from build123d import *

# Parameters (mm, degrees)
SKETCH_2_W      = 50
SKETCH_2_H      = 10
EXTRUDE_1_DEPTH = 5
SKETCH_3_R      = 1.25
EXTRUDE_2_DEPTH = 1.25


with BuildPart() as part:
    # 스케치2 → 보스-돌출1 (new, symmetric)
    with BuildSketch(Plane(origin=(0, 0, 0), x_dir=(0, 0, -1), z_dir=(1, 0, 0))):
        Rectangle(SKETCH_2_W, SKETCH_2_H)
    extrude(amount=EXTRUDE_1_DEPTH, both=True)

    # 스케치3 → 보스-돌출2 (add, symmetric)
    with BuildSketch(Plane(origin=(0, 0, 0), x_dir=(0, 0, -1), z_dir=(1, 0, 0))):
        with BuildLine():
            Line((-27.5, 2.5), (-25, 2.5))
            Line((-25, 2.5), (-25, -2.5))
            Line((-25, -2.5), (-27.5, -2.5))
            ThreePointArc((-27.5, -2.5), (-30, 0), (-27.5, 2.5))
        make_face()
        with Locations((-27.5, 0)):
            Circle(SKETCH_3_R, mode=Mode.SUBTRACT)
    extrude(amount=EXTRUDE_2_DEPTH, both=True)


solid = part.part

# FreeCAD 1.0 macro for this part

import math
import FreeCAD as App
import Part
import Sketcher

V = App.Vector


def add_polygon(sketch, points):
    """Adds a closed chain of lines whose ends are joined by coincident constraints."""
    first, n = sketch.GeometryCount, len(points)
    for a, b in zip(points, points[1:] + points[:1]):
        sketch.addGeometry(Part.LineSegment(App.Vector(*a, 0), App.Vector(*b, 0)), False)
    for i in range(n):
        sketch.addConstraint(Sketcher.Constraint("Coincident", first + i, 2, first + (i + 1) % n, 1))

doc = App.newDocument("Part")
body = doc.addObject("PartDesign::Body", "Body")

# Sketch on YZ plane
sketch1 = body.newObject("Sketcher::SketchObject", "Sketch")
sketch1.AttachmentSupport = (doc.getObject("YZ_Plane"), [""])
sketch1.MapMode = "FlatFace"
add_polygon(sketch1, [(5, 25), (-5, 25), (-5, -25), (5, -25)])  # lines 0-3
sketch1.addConstraint(Sketcher.Constraint("Horizontal", 0))
sketch1.addConstraint(Sketcher.Constraint("Vertical", 1))
sketch1.addConstraint(Sketcher.Constraint("Horizontal", 2))
sketch1.addConstraint(Sketcher.Constraint("Vertical", 3))
sketch1.addConstraint(Sketcher.Constraint("Symmetric", 0, 2, 2, 2, -1, 1))
sketch1.addConstraint(Sketcher.Constraint("DistanceX", 0, 2, 0, 1, 10.0))
sketch1.addConstraint(Sketcher.Constraint("DistanceY", 1, 2, 1, 1, 50.0))
pad1 = body.newObject("PartDesign::Pad", "Pad")
pad1.Profile = sketch1
pad1.Length = 10
pad1.Midplane = True

# Sketch on YZ plane
sketch2 = body.newObject("Sketcher::SketchObject", "Sketch001")
sketch2.AttachmentSupport = (doc.getObject("YZ_Plane"), [""])
sketch2.MapMode = "FlatFace"
sketch2.addGeometry(Part.LineSegment(V(2.5, 25, 0), V(2.5, 27.5, 0)), False)
sketch2.addGeometry(Part.ArcOfCircle(Part.Circle(V(0, 27.5, 0), V(0, 0, 1), 2.5), math.radians(0), math.radians(180)), False)
sketch2.addGeometry(Part.LineSegment(V(-2.5, 27.5, 0), V(-2.5, 25, 0)), False)
sketch2.addGeometry(Part.LineSegment(V(-2.5, 25, 0), V(2.5, 25, 0)), False)
sketch2.addGeometry(Part.Circle(V(0, 27.5, 0), V(0, 0, 1), 1.2), False)
sketch2.addConstraint(Sketcher.Constraint("Tangent", 0, 2, 1, 1))
sketch2.addConstraint(Sketcher.Constraint("Tangent", 1, 2, 2, 1))
sketch2.addConstraint(Sketcher.Constraint("Coincident", 2, 2, 3, 1))
sketch2.addConstraint(Sketcher.Constraint("Coincident", 3, 2, 0, 1))
sketch2.addConstraint(Sketcher.Constraint("Vertical", 0))
sketch2.addConstraint(Sketcher.Constraint("Vertical", 2))
sketch2.addConstraint(Sketcher.Constraint("Horizontal", 3))
sketch2.addConstraint(Sketcher.Constraint("Coincident", 4, 3, 1, 3))
sketch2.addConstraint(Sketcher.Constraint("PointOnObject", 1, 3, -2))
sketch2.addConstraint(Sketcher.Constraint("Diameter", 4, 2.5))
sketch2.addConstraint(Sketcher.Constraint("Radius", 1, 2.5))
sketch2.addConstraint(Sketcher.Constraint("DistanceY", 0, 1, 0, 2, 2.5))
sketch2.addConstraint(Sketcher.Constraint("DistanceY", -1, 1, 2, 2, 25.0))
pad2 = body.newObject("PartDesign::Pad", "Pad001")
pad2.Profile = sketch2
pad2.Length = 2.5
pad2.Midplane = True

doc.recompute()
